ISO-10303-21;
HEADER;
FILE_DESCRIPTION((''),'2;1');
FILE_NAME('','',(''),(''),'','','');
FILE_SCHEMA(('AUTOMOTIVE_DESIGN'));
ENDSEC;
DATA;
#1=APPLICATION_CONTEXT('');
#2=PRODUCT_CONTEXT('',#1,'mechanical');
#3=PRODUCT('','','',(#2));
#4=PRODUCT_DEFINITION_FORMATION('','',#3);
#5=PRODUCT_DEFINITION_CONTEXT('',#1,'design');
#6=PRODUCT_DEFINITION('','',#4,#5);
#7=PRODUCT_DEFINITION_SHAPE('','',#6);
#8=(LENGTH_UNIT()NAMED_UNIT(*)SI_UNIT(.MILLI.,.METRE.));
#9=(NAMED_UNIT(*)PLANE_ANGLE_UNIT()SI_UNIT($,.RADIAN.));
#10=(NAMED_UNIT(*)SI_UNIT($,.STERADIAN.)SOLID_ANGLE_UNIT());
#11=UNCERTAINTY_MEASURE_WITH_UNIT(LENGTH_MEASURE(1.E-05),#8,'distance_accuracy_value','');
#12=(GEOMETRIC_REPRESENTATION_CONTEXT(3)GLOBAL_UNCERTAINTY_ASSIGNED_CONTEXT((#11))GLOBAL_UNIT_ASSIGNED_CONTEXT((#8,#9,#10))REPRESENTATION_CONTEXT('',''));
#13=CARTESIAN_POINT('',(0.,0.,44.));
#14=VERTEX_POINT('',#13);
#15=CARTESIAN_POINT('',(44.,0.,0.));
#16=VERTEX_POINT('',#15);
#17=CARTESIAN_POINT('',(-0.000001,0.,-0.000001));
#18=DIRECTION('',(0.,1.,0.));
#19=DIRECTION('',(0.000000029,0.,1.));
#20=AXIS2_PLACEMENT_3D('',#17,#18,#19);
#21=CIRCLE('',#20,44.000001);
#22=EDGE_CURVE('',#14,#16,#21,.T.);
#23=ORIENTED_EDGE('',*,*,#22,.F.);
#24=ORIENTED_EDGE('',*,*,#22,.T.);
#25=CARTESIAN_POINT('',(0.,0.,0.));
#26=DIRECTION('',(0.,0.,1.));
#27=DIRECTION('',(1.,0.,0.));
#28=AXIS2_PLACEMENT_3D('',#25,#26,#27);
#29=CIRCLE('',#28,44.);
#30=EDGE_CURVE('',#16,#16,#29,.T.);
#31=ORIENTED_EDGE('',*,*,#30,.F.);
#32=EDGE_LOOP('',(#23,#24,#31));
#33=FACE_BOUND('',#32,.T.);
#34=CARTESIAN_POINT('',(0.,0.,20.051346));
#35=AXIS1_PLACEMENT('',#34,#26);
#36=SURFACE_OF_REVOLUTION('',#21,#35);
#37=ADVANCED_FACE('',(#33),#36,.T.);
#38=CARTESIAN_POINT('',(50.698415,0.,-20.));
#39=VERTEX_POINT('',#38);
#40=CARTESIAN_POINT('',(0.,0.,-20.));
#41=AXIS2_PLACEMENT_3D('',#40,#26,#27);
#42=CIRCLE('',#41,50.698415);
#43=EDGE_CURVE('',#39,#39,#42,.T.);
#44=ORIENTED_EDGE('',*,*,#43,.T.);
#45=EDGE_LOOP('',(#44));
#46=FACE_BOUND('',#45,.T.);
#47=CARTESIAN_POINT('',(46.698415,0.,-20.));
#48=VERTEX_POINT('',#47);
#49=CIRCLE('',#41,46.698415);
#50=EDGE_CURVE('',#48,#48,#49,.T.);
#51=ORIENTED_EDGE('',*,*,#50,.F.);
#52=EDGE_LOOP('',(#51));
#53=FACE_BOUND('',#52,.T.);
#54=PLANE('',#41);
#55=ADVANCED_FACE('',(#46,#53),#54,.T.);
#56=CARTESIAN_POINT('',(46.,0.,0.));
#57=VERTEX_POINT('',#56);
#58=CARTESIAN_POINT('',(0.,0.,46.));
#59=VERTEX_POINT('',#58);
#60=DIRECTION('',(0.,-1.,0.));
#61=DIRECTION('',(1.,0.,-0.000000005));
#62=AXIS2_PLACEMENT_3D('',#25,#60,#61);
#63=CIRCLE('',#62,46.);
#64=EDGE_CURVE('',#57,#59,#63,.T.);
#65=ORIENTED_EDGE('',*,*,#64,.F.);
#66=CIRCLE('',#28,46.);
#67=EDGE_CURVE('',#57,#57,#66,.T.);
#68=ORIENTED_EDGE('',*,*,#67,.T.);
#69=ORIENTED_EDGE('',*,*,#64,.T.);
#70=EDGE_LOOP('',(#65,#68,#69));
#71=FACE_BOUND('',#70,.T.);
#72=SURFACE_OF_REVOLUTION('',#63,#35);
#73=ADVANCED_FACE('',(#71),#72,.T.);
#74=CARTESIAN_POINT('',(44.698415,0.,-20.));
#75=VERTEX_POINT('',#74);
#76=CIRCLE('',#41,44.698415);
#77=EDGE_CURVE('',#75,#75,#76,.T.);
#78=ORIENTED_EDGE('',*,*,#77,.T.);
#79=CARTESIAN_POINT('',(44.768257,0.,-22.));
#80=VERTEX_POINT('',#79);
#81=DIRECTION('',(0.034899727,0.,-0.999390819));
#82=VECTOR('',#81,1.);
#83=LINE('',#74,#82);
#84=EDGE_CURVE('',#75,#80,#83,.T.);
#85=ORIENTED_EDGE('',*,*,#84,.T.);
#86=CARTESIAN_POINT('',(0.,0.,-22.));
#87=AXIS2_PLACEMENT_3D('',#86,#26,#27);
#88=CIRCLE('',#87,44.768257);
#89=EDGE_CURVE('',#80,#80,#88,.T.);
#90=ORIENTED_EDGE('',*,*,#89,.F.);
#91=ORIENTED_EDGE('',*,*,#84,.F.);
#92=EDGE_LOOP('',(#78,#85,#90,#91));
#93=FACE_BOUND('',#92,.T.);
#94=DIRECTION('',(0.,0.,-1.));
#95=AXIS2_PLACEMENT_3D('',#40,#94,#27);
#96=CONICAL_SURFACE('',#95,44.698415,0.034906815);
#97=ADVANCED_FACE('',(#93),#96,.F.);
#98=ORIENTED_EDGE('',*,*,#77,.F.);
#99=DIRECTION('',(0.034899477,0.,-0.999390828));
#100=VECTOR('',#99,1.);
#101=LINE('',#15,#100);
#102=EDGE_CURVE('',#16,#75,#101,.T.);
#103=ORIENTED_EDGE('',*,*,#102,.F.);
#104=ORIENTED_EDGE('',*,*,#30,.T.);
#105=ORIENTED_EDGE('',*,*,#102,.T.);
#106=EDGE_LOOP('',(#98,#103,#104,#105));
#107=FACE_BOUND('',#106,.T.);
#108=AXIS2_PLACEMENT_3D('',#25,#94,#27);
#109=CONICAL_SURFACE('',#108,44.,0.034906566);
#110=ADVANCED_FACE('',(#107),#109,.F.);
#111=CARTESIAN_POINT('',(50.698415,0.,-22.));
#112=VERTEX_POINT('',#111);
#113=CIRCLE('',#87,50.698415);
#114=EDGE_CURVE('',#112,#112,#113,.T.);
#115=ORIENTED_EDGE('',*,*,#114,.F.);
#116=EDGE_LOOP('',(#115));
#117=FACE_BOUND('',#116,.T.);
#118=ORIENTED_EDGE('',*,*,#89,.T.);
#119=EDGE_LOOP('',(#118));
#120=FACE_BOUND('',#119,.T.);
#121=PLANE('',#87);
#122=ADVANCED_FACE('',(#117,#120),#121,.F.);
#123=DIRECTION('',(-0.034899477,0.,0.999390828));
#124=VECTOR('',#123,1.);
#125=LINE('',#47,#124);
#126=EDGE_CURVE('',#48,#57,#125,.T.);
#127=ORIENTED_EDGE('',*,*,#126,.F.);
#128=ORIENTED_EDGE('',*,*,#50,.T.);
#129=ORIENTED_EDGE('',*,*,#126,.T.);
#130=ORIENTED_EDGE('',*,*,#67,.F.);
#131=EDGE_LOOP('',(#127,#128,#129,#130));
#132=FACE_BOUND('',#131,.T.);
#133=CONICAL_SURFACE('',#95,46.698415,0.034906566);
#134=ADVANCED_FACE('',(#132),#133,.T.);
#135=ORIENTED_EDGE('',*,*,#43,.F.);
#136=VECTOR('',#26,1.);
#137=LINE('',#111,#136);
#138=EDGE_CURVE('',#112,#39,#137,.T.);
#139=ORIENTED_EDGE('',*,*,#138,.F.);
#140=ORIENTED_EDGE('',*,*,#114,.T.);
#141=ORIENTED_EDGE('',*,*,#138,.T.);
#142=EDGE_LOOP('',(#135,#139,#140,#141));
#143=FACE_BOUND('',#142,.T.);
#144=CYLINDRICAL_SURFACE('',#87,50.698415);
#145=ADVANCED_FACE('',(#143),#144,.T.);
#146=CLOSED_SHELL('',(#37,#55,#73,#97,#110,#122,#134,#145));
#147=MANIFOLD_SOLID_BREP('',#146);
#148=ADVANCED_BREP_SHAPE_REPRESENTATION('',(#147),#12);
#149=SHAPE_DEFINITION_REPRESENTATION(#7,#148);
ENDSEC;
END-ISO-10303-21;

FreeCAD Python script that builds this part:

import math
import FreeCAD as App
import Part
import Sketcher
Q = App.Units.Quantity

doc = App.newDocument("Part")
body = doc.addObject("PartDesign::Body", "Body")

sketch1 = doc.addObject("Sketcher::SketchObject", "Sketch")
body.addObject(sketch1)
sketch1.AttachmentSupport = (doc.XZ_Plane, [""])
sketch1.MapMode = "FlatFace"
sketch1.addGeometry(Part.ArcOfCircle(Part.Circle(App.Vector(-0.000001, -0.000001, 0), App.Vector(0, 0, 1), 44.000001), math.radians(0.000002), math.radians(89.999998)), False)
sketch1.addGeometry(Part.LineSegment(App.Vector(44, 0, 0), App.Vector(44.698415, -20, 0)), False)
sketch1.addGeometry(Part.LineSegment(App.Vector(44.698415, -20, 0), App.Vector(44.768257, -22, 0)), False)
sketch1.addGeometry(Part.LineSegment(App.Vector(44.768257, -22, 0), App.Vector(50.698415, -22, 0)), False)
sketch1.addGeometry(Part.LineSegment(App.Vector(50.698415, -22, 0), App.Vector(50.698415, -20, 0)), False)
sketch1.addGeometry(Part.LineSegment(App.Vector(50.698415, -20, 0), App.Vector(46.698415, -20, 0)), False)
sketch1.addGeometry(Part.LineSegment(App.Vector(46.698415, -20, 0), App.Vector(46, 0, 0)), False)
sketch1.addGeometry(Part.ArcOfCircle(Part.Circle(App.Vector(0, 0, 0), App.Vector(0, 0, 1), 46), math.radians(0), math.radians(90)), False)
sketch1.addGeometry(Part.LineSegment(App.Vector(0, 46, 0), App.Vector(0, 44, 0)), False)
sketch1.addConstraint(Sketcher.Constraint("Coincident", 0, 1, 1, 1))
sketch1.addConstraint(Sketcher.Constraint("Coincident", 1, 2, 2, 1))
sketch1.addConstraint(Sketcher.Constraint("Coincident", 2, 2, 3, 1))
sketch1.addConstraint(Sketcher.Constraint("Coincident", 3, 2, 4, 1))
sketch1.addConstraint(Sketcher.Constraint("Coincident", 4, 2, 5, 1))
sketch1.addConstraint(Sketcher.Constraint("Coincident", 5, 2, 6, 1))
sketch1.addConstraint(Sketcher.Constraint("Coincident", 6, 2, 7, 1))
sketch1.addConstraint(Sketcher.Constraint("Coincident", 7, 2, 8, 1))
sketch1.addConstraint(Sketcher.Constraint("Coincident", 8, 2, 0, 2))
sketch1.addConstraint(Sketcher.Constraint("Horizontal", 3))
sketch1.addConstraint(Sketcher.Constraint("Vertical", 4))
sketch1.addConstraint(Sketcher.Constraint("Horizontal", 5))
sketch1.addConstraint(Sketcher.Constraint("Vertical", 8))
sketch1.addConstraint(Sketcher.Constraint("Coincident", 0, 3, -1, 1))
sketch1.addConstraint(Sketcher.Constraint("Coincident", 7, 3, -1, 1))
sketch1.addConstraint(Sketcher.Constraint("PointOnObject", 0, 1, -1))
sketch1.addConstraint(Sketcher.Constraint("PointOnObject", 6, 2, -1))
sketch1.addConstraint(Sketcher.Constraint("PointOnObject", 7, 2, -2))
sketch1.addConstraint(Sketcher.Constraint("Parallel", 1, 2))
sketch1.addConstraint(Sketcher.Constraint("Parallel", 2, 6))
sketch1.addConstraint(Sketcher.Constraint("Horizontal", 1, 2, 4, 2))
sketch1.addConstraint(Sketcher.Constraint("Equal", 4, 8))
sketch1.addConstraint(Sketcher.Constraint("Radius", 0, 44.000001))
sketch1.addConstraint(Sketcher.Constraint("Radius", 7, 46.0))
sketch1.addConstraint(Sketcher.Constraint("DistanceX", 5, 2, 5, 1, 4.0))
sketch1.addConstraint(Sketcher.Constraint("Angle", 1, Q("-88.000001 deg")))
sketch1.addConstraint(Sketcher.Constraint("DistanceY", 1, 2, -1, 1, 20.0))
revolution = doc.addObject("PartDesign::Revolution", "Revolution")
body.addObject(revolution)
revolution.Profile = sketch1
revolution.ReferenceAxis = (sketch1, ["V_Axis"])
revolution.Angle = 360

doc.recompute()
